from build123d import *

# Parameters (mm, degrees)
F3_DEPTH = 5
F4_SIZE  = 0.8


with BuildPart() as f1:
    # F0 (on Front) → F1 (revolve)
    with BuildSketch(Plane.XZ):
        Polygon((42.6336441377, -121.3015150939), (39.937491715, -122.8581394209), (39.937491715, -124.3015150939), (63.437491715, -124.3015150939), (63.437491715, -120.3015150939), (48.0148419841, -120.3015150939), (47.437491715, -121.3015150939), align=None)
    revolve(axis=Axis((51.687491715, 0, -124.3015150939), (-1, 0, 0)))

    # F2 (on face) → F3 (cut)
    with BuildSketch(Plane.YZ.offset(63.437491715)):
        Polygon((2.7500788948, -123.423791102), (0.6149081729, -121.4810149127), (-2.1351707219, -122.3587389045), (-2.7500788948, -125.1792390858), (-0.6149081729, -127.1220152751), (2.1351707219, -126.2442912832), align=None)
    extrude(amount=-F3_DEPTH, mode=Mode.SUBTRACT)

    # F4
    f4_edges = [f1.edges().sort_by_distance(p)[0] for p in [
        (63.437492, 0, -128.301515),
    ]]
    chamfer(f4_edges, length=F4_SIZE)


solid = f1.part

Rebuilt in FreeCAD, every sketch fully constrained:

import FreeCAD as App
import Part
import Sketcher
Q = App.Units.Quantity


def edges_at(feature, points):
    """Names of the edges that pass closest to the given points."""
    edges = feature.Shape.Edges
    near = lambda p: min(range(len(edges)), key=lambda i: edges[i].distToShape(Part.Vertex(*p))[0])
    return sorted({f"Edge{near(p) + 1}" for p in points})

doc = App.newDocument("Part")
body = doc.addObject("PartDesign::Body", "Body")

sketch1 = doc.addObject("Sketcher::SketchObject", "Sketch")
body.addObject(sketch1)
sketch1.AttachmentSupport = (doc.XZ_Plane, [""])
sketch1.MapMode = "FlatFace"
sketch1.addGeometry(Part.LineSegment(App.Vector(42.6, -121.3, 0), App.Vector(39.9, -122.9, 0)), False)
sketch1.addGeometry(Part.LineSegment(App.Vector(39.9, -122.9, 0), App.Vector(39.9, -124.3, 0)), False)
sketch1.addGeometry(Part.LineSegment(App.Vector(39.9, -124.3, 0), App.Vector(63.4, -124.3, 0)), False)
sketch1.addGeometry(Part.LineSegment(App.Vector(63.4, -124.3, 0), App.Vector(63.4, -120.3, 0)), False)
sketch1.addGeometry(Part.LineSegment(App.Vector(63.4, -120.3, 0), App.Vector(48, -120.3, 0)), False)
sketch1.addGeometry(Part.LineSegment(App.Vector(48, -120.3, 0), App.Vector(47.4, -121.3, 0)), False)
sketch1.addGeometry(Part.LineSegment(App.Vector(47.4, -121.3, 0), App.Vector(42.6, -121.3, 0)), False)
sketch1.addGeometry(Part.LineSegment(App.Vector(63.4, -124.3, 0), App.Vector(39.9, -124.3, 0)), True)
sketch1.addConstraint(Sketcher.Constraint("Coincident", 0, 2, 1, 1))
sketch1.addConstraint(Sketcher.Constraint("Coincident", 1, 2, 2, 1))
sketch1.addConstraint(Sketcher.Constraint("Coincident", 2, 2, 3, 1))
sketch1.addConstraint(Sketcher.Constraint("Coincident", 3, 2, 4, 1))
sketch1.addConstraint(Sketcher.Constraint("Coincident", 4, 2, 5, 1))
sketch1.addConstraint(Sketcher.Constraint("Coincident", 5, 2, 6, 1))
sketch1.addConstraint(Sketcher.Constraint("Coincident", 6, 2, 0, 1))
sketch1.addConstraint(Sketcher.Constraint("Vertical", 1))
sketch1.addConstraint(Sketcher.Constraint("Horizontal", 2))
sketch1.addConstraint(Sketcher.Constraint("Vertical", 3))
sketch1.addConstraint(Sketcher.Constraint("Horizontal", 4))
sketch1.addConstraint(Sketcher.Constraint("Horizontal", 6))
sketch1.addConstraint(Sketcher.Constraint("Horizontal", 7))
sketch1.addConstraint(Sketcher.Constraint("Coincident", 7, 1, 2, 2))
sketch1.addConstraint(Sketcher.Constraint("Vertical", 0, 2, 7, 2))
sketch1.addConstraint(Sketcher.Constraint("DistanceY", 3, 1, 3, 2, Q("4 mm")))
sketch1.addConstraint(Sketcher.Constraint("Angle", 0, Q("-150 deg")))
sketch1.addConstraint(Sketcher.Constraint("Angle", 5, Q("-120 deg")))
sketch1.addConstraint(Sketcher.Constraint("DistanceX", 2, 1, 2, 2, Q("23.5 mm")))
sketch1.addConstraint(Sketcher.Constraint("DistanceY", 5, 2, 4, 2, Q("1 mm")))
sketch1.addConstraint(Sketcher.Constraint("DistanceX", 5, 2, 3, 2, Q("16 mm")))
sketch1.addConstraint(Sketcher.Constraint("Distance", 0, Q("3.113249 mm")))
sketch1.addConstraint(Sketcher.Constraint("DistanceX", -1, 1, 0, 2, Q("39.937492 mm")))
sketch1.addConstraint(Sketcher.Constraint("DistanceY", 0, 2, -1, 1, Q("122.858139 mm")))
revolution = doc.addObject("PartDesign::Revolution", "Revolution")
body.addObject(revolution)
revolution.Profile = sketch1
revolution.ReferenceAxis = (sketch1, ["Axis0"])
revolution.Angle = 360

sketch2 = doc.addObject("Sketcher::SketchObject", "Sketch001")
body.addObject(sketch2)
sketch2.AttachmentSupport = (doc.YZ_Plane, [""])
sketch2.MapMode = "FlatFace"
sketch2.AttachmentOffset = App.Placement(App.Vector(0, 0, 63.437492), App.Rotation())
sketch2.addGeometry(Part.LineSegment(App.Vector(2.8, -123.4, 0), App.Vector(0.6, -121.5, 0)), False)
sketch2.addGeometry(Part.LineSegment(App.Vector(0.6, -121.5, 0), App.Vector(-2.1, -122.4, 0)), False)
sketch2.addGeometry(Part.LineSegment(App.Vector(-2.1, -122.4, 0), App.Vector(-2.8, -125.2, 0)), False)
sketch2.addGeometry(Part.LineSegment(App.Vector(-2.8, -125.2, 0), App.Vector(-0.6, -127.1, 0)), False)
sketch2.addGeometry(Part.LineSegment(App.Vector(-0.6, -127.1, 0), App.Vector(2.1, -126.2, 0)), False)
sketch2.addGeometry(Part.LineSegment(App.Vector(2.1, -126.2, 0), App.Vector(2.8, -123.4, 0)), False)
sketch2.addConstraint(Sketcher.Constraint("Coincident", 0, 2, 1, 1))
sketch2.addConstraint(Sketcher.Constraint("Coincident", 1, 2, 2, 1))
sketch2.addConstraint(Sketcher.Constraint("Coincident", 2, 2, 3, 1))
sketch2.addConstraint(Sketcher.Constraint("Coincident", 3, 2, 4, 1))
sketch2.addConstraint(Sketcher.Constraint("Coincident", 4, 2, 5, 1))
sketch2.addConstraint(Sketcher.Constraint("Coincident", 5, 2, 0, 1))
sketch2.addConstraint(Sketcher.Constraint("Parallel", 0, 3))
sketch2.addConstraint(Sketcher.Constraint("Parallel", 1, 4))
sketch2.addConstraint(Sketcher.Constraint("Parallel", 2, 5))
sketch2.addConstraint(Sketcher.Constraint("Equal", 0, 1))
sketch2.addConstraint(Sketcher.Constraint("Equal", 1, 2))
sketch2.addConstraint(Sketcher.Constraint("Equal", 2, 3))
sketch2.addConstraint(Sketcher.Constraint("DistanceY", 3, 2, 0, 2, Q("5.641 mm")))
sketch2.addConstraint(Sketcher.Constraint("DistanceY", 2, 2, 1, 2, Q("2.8205 mm")))
sketch2.addConstraint(Sketcher.Constraint("Distance", 0, Q("2.886751 mm")))
sketch2.addConstraint(Sketcher.Constraint("DistanceX", -1, 1, 0, 2, Q("0.614908 mm")))
sketch2.addConstraint(Sketcher.Constraint("DistanceX", 1, 2, -1, 1, Q("2.135171 mm")))
sketch2.addConstraint(Sketcher.Constraint("DistanceY", 1, 2, -1, 1, Q("122.358739 mm")))
pocket1 = doc.addObject("PartDesign::Pocket", "Pocket")
body.addObject(pocket1)
pocket1.Profile = sketch2
pocket1.Length = 5
doc.recompute()

chamfer = doc.addObject("PartDesign::Chamfer", "Chamfer")
body.addObject(chamfer)
chamfer.Base = (pocket1, edges_at(pocket1, [(63.437, 0, -128.302)]))
chamfer.Size = 0.8

doc.recompute()
